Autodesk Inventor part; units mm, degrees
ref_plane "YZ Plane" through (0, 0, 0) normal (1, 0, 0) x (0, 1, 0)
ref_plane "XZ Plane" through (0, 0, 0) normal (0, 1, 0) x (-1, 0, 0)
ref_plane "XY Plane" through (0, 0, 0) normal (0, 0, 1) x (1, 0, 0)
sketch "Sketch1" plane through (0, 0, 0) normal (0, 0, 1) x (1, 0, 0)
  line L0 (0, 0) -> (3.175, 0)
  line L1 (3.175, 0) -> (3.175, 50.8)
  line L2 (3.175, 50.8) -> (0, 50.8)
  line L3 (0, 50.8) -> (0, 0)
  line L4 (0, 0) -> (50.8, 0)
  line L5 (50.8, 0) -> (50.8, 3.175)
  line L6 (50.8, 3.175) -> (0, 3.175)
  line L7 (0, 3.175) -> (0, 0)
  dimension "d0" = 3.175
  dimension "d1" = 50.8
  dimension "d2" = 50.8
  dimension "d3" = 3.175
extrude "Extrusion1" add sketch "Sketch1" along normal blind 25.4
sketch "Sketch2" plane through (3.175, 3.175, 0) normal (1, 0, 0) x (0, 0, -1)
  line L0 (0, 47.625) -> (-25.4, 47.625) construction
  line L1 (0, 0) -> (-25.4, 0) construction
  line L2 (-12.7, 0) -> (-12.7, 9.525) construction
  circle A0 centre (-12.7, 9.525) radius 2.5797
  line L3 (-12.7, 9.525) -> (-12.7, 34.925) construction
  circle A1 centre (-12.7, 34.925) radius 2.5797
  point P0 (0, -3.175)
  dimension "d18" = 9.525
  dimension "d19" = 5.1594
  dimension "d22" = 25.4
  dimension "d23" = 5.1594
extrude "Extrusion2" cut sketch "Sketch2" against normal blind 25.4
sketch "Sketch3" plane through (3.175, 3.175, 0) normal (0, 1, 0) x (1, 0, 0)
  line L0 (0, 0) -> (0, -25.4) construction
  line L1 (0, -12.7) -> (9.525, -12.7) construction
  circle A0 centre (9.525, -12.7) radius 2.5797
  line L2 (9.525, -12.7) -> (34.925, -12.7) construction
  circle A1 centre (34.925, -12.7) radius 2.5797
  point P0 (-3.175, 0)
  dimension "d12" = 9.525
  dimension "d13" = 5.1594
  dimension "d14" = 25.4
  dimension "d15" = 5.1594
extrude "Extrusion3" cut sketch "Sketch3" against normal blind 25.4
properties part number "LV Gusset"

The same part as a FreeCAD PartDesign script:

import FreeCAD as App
import Part
import Sketcher
Q = App.Units.Quantity

doc = App.newDocument("Part")
body = doc.addObject("PartDesign::Body", "Body")

sketch1 = body.newObject("Sketcher::SketchObject", "Sketch")
sketch1.AttachmentSupport = (doc.getObject("XY_Plane"), [""])
sketch1.MapMode = "FlatFace"
sketch1.addGeometry([
    Part.LineSegment(App.Vector(0, 0, 0), App.Vector(50.8, 0, 0)),
    Part.LineSegment(App.Vector(50.8, 0, 0), App.Vector(50.8, 3.2, 0)),
    Part.LineSegment(App.Vector(50.8, 3.2, 0), App.Vector(3.2, 3.2, 0)),
    Part.LineSegment(App.Vector(3.2, 3.2, 0), App.Vector(3.2, 50.8, 0)),
    Part.LineSegment(App.Vector(3.2, 50.8, 0), App.Vector(0, 50.8, 0)),
    Part.LineSegment(App.Vector(0, 50.8, 0), App.Vector(0, 0, 0)),
], False)
sketch1.addConstraint([
    Sketcher.Constraint("Coincident", 0, 2, 1, 1),
    Sketcher.Constraint("Coincident", 1, 2, 2, 1),
    Sketcher.Constraint("Coincident", 2, 2, 3, 1),
    Sketcher.Constraint("Coincident", 3, 2, 4, 1),
    Sketcher.Constraint("Coincident", 4, 2, 5, 1),
    Sketcher.Constraint("Coincident", 5, 2, 0, 1),
    Sketcher.Constraint("Horizontal", 0),
    Sketcher.Constraint("Vertical", 1),
    Sketcher.Constraint("Horizontal", 2),
    Sketcher.Constraint("Vertical", 3),
    Sketcher.Constraint("Horizontal", 4),
    Sketcher.Constraint("Vertical", 5),
    Sketcher.Constraint("Coincident", 5, 2, -1, 1),
    Sketcher.Constraint("Equal", 4, 1),
    Sketcher.Constraint("Equal", 2, 3),
    Sketcher.Constraint("DistanceX", 0, 1, 0, 2, Q("2 in")),
    Sketcher.Constraint("DistanceX", 4, 2, 4, 1, Q("0.125 in")),
])
pad1 = body.newObject("PartDesign::Pad", "Pad")
pad1.Profile = sketch1
pad1.Length = Q("1 in")

sketch2 = body.newObject("Sketcher::SketchObject", "Sketch001")
sketch2.AttachmentSupport = (doc.getObject("YZ_Plane"), [""])
sketch2.MapMode = "FlatFace"
sketch2.AttachmentOffset = App.Placement(App.Vector(0, 0, 0.125 * 25.4), App.Rotation())
sketch2.addGeometry([
    Part.Circle(App.Vector(12.7, 12.7, 0), App.Vector(0, 0, 1), 2.6),
    Part.Circle(App.Vector(38.1, 12.7, 0), App.Vector(0, 0, 1), 2.6),
], False)
sketch2.addConstraint([
    Sketcher.Constraint("Equal", 0, 1),
    Sketcher.Constraint("Horizontal", 0, 3, 1, 3),
    Sketcher.Constraint("Diameter", 0, Q("0.203126 in")),
    Sketcher.Constraint("DistanceX", 0, 3, 1, 3, Q("1 in")),
    Sketcher.Constraint("DistanceX", -1, 1, 0, 3, Q("0.5 in")),
    Sketcher.Constraint("DistanceY", -1, 1, 0, 3, Q("0.5 in")),
])
pocket1 = body.newObject("PartDesign::Pocket", "Pocket")
pocket1.Profile = sketch2
pocket1.Length = Q("1 in")

sketch3 = body.newObject("Sketcher::SketchObject", "Sketch002")
sketch3.AttachmentSupport = (doc.getObject("XZ_Plane"), [""])
sketch3.MapMode = "FlatFace"
sketch3.AttachmentOffset = App.Placement(App.Vector(0, 0, -0.125 * 25.4), App.Rotation())
sketch3.addGeometry([
    Part.Circle(App.Vector(12.7, 12.7, 0), App.Vector(0, 0, 1), 2.6),
    Part.Circle(App.Vector(38.1, 12.7, 0), App.Vector(0, 0, 1), 2.6),
], False)
sketch3.addConstraint([
    Sketcher.Constraint("Equal", 0, 1),
    Sketcher.Constraint("Horizontal", 0, 3, 1, 3),
    Sketcher.Constraint("Diameter", 0, Q("0.203126 in")),
    Sketcher.Constraint("DistanceX", 0, 3, 1, 3, Q("1 in")),
    Sketcher.Constraint("DistanceX", -1, 1, 0, 3, Q("0.5 in")),
    Sketcher.Constraint("DistanceY", -1, 1, 0, 3, Q("0.5 in")),
])
pocket2 = body.newObject("PartDesign::Pocket", "Pocket001")
pocket2.Profile = sketch3
pocket2.Length = Q("1 in")
pocket2.Reversed = True

doc.recompute()
